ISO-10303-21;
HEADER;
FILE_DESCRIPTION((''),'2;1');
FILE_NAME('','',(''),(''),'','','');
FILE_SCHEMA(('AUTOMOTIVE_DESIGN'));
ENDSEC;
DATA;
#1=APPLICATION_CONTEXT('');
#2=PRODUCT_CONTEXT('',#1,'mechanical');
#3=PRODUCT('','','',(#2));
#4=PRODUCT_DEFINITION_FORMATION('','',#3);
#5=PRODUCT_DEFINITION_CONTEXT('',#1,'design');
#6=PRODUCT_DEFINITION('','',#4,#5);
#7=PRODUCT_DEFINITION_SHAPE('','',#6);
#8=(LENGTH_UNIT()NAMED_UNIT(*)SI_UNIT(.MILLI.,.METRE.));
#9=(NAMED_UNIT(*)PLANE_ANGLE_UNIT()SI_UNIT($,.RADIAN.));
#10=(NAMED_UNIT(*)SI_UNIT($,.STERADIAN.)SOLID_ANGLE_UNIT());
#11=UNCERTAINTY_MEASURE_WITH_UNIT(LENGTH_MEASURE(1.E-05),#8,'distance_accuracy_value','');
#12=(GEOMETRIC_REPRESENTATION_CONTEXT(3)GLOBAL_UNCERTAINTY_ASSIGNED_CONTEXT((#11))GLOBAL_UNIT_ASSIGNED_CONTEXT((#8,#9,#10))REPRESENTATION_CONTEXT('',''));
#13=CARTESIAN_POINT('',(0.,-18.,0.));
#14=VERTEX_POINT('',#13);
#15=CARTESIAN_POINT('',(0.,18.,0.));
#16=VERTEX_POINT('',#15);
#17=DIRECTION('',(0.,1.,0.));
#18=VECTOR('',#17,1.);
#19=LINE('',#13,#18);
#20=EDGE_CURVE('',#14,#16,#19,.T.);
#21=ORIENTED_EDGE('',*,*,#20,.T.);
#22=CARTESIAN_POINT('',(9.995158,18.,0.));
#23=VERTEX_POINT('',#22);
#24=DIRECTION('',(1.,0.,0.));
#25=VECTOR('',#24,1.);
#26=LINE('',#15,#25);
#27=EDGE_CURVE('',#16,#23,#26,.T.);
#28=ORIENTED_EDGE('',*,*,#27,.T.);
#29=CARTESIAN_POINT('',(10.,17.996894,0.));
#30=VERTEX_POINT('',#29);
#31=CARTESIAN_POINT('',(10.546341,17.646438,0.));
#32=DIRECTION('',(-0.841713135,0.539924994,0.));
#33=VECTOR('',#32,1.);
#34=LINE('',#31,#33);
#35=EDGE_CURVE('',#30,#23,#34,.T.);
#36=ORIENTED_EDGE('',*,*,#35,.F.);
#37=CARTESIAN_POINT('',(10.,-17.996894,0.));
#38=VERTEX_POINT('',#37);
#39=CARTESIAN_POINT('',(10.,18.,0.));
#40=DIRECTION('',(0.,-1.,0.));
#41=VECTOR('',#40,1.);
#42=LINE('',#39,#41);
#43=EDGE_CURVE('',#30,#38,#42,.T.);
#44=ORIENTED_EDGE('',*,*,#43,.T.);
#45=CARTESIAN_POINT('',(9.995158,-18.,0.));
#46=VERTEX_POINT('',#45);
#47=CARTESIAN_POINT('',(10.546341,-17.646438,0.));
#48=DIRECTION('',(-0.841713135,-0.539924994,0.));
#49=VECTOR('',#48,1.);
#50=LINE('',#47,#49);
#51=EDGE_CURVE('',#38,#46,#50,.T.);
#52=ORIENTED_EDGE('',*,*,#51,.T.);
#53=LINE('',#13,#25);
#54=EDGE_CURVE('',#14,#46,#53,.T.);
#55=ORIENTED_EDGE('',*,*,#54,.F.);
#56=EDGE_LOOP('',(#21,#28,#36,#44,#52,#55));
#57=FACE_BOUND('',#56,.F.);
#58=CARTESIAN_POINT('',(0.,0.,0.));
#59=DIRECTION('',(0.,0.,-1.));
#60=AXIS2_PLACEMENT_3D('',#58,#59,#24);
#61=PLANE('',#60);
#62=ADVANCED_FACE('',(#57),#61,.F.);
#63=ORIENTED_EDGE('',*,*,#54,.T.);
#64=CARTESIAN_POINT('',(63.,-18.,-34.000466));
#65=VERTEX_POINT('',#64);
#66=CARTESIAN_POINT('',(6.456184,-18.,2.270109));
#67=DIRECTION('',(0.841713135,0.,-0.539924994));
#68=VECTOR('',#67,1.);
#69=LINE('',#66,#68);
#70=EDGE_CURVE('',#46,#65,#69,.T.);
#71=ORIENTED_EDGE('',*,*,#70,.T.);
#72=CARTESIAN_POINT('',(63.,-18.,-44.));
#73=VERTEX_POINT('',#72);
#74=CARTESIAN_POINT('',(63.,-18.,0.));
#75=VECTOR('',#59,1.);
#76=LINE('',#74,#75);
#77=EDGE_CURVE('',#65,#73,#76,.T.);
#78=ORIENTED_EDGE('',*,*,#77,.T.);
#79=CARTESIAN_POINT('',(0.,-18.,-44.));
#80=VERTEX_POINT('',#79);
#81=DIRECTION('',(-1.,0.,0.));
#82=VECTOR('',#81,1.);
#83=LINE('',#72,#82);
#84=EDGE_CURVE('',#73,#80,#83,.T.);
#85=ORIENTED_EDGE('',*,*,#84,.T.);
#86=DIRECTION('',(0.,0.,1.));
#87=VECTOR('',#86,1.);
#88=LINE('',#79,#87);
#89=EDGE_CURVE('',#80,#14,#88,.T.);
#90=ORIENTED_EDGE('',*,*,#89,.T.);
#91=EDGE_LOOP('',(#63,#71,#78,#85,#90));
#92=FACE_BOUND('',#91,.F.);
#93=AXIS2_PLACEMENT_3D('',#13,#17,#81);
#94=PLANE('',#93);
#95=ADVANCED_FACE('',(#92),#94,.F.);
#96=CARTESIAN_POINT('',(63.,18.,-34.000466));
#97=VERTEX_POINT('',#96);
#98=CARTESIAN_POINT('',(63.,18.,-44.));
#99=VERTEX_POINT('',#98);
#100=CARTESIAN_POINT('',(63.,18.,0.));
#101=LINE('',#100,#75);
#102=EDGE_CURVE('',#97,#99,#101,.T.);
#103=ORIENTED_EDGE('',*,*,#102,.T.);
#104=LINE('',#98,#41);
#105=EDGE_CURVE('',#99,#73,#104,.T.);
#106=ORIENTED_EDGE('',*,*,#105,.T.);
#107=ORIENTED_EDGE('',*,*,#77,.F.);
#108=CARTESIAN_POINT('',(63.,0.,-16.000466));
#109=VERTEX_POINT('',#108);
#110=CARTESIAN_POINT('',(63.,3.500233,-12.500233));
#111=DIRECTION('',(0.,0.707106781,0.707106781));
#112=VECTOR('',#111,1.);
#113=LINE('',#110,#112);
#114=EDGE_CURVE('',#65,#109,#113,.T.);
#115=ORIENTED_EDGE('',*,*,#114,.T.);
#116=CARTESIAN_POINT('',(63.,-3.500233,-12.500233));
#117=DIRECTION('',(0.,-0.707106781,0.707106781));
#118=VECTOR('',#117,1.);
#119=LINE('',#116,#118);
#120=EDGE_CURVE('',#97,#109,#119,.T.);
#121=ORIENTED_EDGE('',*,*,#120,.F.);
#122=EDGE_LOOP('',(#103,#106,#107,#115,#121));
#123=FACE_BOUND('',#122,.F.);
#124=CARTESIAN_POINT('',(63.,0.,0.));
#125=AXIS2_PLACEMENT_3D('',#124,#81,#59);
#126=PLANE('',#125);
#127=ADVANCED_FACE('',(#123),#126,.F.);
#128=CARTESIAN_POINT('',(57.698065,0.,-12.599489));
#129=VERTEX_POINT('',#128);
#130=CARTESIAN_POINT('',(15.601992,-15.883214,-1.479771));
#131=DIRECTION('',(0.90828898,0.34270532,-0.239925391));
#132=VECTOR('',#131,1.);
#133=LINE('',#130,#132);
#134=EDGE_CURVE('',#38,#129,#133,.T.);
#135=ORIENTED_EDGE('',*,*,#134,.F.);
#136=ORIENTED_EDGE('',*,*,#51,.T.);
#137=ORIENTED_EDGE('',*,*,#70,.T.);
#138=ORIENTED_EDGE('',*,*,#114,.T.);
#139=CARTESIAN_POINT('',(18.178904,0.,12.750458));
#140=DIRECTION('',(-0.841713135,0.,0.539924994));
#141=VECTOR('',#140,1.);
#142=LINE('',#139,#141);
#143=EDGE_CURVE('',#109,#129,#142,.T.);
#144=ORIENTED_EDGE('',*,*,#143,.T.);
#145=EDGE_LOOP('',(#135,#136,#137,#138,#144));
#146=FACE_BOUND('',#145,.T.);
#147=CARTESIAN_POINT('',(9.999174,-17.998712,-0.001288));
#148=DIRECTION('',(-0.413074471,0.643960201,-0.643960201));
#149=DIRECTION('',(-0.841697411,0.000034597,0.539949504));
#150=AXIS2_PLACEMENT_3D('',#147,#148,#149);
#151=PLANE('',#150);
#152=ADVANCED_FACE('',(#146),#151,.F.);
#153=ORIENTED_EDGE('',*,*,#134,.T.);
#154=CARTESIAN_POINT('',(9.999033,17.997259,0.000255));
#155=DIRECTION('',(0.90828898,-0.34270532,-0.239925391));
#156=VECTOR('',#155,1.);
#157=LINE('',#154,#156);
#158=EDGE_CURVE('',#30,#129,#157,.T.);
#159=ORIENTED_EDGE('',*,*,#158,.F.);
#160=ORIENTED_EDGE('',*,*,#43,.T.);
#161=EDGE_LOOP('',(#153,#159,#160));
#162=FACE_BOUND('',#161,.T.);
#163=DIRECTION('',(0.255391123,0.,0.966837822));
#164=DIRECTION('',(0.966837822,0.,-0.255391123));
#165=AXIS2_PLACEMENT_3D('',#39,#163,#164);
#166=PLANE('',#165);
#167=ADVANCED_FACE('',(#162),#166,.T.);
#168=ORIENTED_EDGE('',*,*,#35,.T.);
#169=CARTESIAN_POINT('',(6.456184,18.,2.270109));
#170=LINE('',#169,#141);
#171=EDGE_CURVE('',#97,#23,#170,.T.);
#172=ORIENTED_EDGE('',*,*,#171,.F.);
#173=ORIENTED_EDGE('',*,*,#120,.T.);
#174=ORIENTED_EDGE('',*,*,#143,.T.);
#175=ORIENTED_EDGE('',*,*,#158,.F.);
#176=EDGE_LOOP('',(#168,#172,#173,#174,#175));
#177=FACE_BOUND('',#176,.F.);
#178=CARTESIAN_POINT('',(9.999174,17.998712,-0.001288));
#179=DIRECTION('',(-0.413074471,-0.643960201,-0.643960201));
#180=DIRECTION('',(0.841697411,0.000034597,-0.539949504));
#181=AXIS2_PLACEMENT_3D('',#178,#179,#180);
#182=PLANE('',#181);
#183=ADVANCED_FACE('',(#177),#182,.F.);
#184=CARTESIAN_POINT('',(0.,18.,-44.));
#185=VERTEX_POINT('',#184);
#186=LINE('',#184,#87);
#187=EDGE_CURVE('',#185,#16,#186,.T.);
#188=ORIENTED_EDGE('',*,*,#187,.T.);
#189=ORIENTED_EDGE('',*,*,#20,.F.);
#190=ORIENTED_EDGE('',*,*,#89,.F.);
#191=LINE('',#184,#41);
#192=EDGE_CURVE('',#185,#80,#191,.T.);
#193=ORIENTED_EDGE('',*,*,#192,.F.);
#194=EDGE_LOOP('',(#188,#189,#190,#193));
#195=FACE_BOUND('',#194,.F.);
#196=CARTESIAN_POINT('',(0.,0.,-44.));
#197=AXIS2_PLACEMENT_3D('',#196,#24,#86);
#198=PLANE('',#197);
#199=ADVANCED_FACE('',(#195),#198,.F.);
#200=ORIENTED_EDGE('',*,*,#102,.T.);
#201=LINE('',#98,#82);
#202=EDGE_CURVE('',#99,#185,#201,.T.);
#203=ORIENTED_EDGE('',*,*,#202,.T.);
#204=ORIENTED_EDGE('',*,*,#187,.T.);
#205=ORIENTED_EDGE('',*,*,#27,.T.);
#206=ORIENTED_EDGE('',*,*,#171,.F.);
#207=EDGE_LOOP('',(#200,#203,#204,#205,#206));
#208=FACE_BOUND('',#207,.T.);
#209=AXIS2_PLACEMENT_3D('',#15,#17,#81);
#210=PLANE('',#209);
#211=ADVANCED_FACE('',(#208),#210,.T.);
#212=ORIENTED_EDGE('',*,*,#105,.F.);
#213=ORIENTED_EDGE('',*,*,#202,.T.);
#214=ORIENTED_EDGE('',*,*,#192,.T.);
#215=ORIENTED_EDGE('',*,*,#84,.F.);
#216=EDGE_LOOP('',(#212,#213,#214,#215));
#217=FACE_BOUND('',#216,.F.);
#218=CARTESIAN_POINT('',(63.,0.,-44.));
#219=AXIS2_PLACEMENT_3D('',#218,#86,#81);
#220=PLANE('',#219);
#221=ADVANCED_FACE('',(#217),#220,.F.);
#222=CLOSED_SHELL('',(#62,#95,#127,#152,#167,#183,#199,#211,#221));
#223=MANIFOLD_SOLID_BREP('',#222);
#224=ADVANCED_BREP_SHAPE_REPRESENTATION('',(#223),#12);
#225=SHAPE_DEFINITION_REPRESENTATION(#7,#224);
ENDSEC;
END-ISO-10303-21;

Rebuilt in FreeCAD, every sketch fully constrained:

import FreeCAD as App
import Part
import Sketcher
from FreeCAD import Vector
Q = App.Units.Quantity

doc = App.newDocument("Part")
body = doc.addObject("PartDesign::Body", "Body")

sketch1 = doc.addObject("Sketcher::SketchObject", "Sketch")
body.addObject(sketch1)
sketch1.AttachmentSupport = (doc.XZ_Plane, [""])
sketch1.MapMode = "FlatFace"
sketch1.addGeometry(Part.LineSegment(Vector(0, -44, 0), Vector(0, 0, 0)), False)
sketch1.addGeometry(Part.LineSegment(Vector(0, 0, 0), Vector(63, 0, 0)), False)
sketch1.addGeometry(Part.LineSegment(Vector(63, 0, 0), Vector(63, -44, 0)), False)
sketch1.addGeometry(Part.LineSegment(Vector(63, -44, 0), Vector(0, -44, 0)), False)
sketch1.addConstraint(Sketcher.Constraint("Coincident", 0, 2, 1, 1))
sketch1.addConstraint(Sketcher.Constraint("Coincident", 1, 2, 2, 1))
sketch1.addConstraint(Sketcher.Constraint("Coincident", 2, 2, 3, 1))
sketch1.addConstraint(Sketcher.Constraint("Coincident", 3, 2, 0, 1))
sketch1.addConstraint(Sketcher.Constraint("Vertical", 0))
sketch1.addConstraint(Sketcher.Constraint("Horizontal", 1))
sketch1.addConstraint(Sketcher.Constraint("Vertical", 2))
sketch1.addConstraint(Sketcher.Constraint("Horizontal", 3))
sketch1.addConstraint(Sketcher.Constraint("Coincident", 0, 2, -1, 1))
sketch1.addConstraint(Sketcher.Constraint("DistanceX", 1, 1, 1, 2, Q("63 mm")))
sketch1.addConstraint(Sketcher.Constraint("DistanceY", 0, 1, 0, 2, Q("44 mm")))
pad1 = doc.addObject("PartDesign::Pad", "Pad")
body.addObject(pad1)
pad1.Profile = sketch1
pad1.Length = 36
pad1.Midplane = True

sketch2 = doc.addObject("Sketcher::SketchObject", "Sketch001")
body.addObject(sketch2)
sketch2.AttachmentSupport = (doc.XZ_Plane, [""])
sketch2.MapMode = "FlatFace"
sketch2.AttachmentOffset = App.Placement(Vector(0, 0, -18), App.Rotation())
sketch2.addGeometry(Part.LineSegment(Vector(63, -14, 0), Vector(10, 0, 0)), False)
sketch2.addGeometry(Part.LineSegment(Vector(10, 0, 0), Vector(63, 0, 0)), False)
sketch2.addGeometry(Part.LineSegment(Vector(63, 0, 0), Vector(63, -14, 0)), False)
sketch2.addConstraint(Sketcher.Constraint("Coincident", 0, 2, 1, 1))
sketch2.addConstraint(Sketcher.Constraint("Coincident", 1, 2, 2, 1))
sketch2.addConstraint(Sketcher.Constraint("Coincident", 2, 2, 0, 1))
sketch2.addConstraint(Sketcher.Constraint("Horizontal", 1))
sketch2.addConstraint(Sketcher.Constraint("Vertical", 2))
sketch2.addConstraint(Sketcher.Constraint("PointOnObject", 0, 2, -1))
sketch2.addConstraint(Sketcher.Constraint("DistanceX", -1, 1, 0, 2, Q("10 mm")))
sketch2.addConstraint(Sketcher.Constraint("DistanceX", 1, 1, 1, 2, Q("53 mm")))
sketch2.addConstraint(Sketcher.Constraint("DistanceY", 2, 2, 2, 1, Q("14 mm")))
pocket1 = doc.addObject("PartDesign::Pocket", "Pocket")
body.addObject(pocket1)
pocket1.Profile = sketch2
pocket1.Length = 40
pocket1.Reversed = True

sketch3 = doc.addObject("Sketcher::SketchObject", "Sketch002")
body.addObject(sketch3)
sketch3.Placement = App.Placement(Vector(10, 18, 0), App.Rotation(Vector(0.841697411, 0.000034597, -0.539949504), Vector(0.34772827, -0.76505899, 0.542005343), Vector(-0.413074471, -0.643960201, -0.643960201), "ZXY"))
sketch3.addGeometry(Part.LineSegment(Vector(-15.1543, 28.8166, 0), Vector(-15.1543, -12.3218, 0)), False)
sketch3.addGeometry(Part.LineSegment(Vector(-15.1543, -12.3218, 0), Vector(93.717, -12.3218, 0)), False)
sketch3.addGeometry(Part.LineSegment(Vector(93.717, -12.3218, 0), Vector(93.717, 28.8166, 0)), False)
sketch3.addGeometry(Part.LineSegment(Vector(93.717, 28.8166, 0), Vector(-15.1543, 28.8166, 0)), False)
sketch3.addConstraint(Sketcher.Constraint("Coincident", 0, 2, 1, 1))
sketch3.addConstraint(Sketcher.Constraint("Coincident", 1, 2, 2, 1))
sketch3.addConstraint(Sketcher.Constraint("Coincident", 2, 2, 3, 1))
sketch3.addConstraint(Sketcher.Constraint("Coincident", 3, 2, 0, 1))
sketch3.addConstraint(Sketcher.Constraint("Vertical", 0))
sketch3.addConstraint(Sketcher.Constraint("Horizontal", 1))
sketch3.addConstraint(Sketcher.Constraint("Vertical", 2))
sketch3.addConstraint(Sketcher.Constraint("Horizontal", 3))
sketch3.addConstraint(Sketcher.Constraint("DistanceX", 1, 1, 1, 2, Q("108.8713 mm")))
sketch3.addConstraint(Sketcher.Constraint("DistanceY", 0, 2, 0, 1, Q("41.1384 mm")))
sketch3.addConstraint(Sketcher.Constraint("DistanceX", -1, 1, 1, 2, Q("93.717 mm")))
sketch3.addConstraint(Sketcher.Constraint("DistanceY", 0, 2, -1, 1, Q("12.3218 mm")))
pocket2 = doc.addObject("PartDesign::Pocket", "Pocket001")
body.addObject(pocket2)
pocket2.Profile = sketch3
pocket2.Length = 40
doc.recompute()

mirrored = doc.addObject("PartDesign::Mirrored", "Mirrored")
body.addObject(mirrored)
mirrored.Originals = [pocket2]
mirrored.MirrorPlane = (doc.XZ_Plane, [""])
body.Tip = mirrored

doc.recompute()
